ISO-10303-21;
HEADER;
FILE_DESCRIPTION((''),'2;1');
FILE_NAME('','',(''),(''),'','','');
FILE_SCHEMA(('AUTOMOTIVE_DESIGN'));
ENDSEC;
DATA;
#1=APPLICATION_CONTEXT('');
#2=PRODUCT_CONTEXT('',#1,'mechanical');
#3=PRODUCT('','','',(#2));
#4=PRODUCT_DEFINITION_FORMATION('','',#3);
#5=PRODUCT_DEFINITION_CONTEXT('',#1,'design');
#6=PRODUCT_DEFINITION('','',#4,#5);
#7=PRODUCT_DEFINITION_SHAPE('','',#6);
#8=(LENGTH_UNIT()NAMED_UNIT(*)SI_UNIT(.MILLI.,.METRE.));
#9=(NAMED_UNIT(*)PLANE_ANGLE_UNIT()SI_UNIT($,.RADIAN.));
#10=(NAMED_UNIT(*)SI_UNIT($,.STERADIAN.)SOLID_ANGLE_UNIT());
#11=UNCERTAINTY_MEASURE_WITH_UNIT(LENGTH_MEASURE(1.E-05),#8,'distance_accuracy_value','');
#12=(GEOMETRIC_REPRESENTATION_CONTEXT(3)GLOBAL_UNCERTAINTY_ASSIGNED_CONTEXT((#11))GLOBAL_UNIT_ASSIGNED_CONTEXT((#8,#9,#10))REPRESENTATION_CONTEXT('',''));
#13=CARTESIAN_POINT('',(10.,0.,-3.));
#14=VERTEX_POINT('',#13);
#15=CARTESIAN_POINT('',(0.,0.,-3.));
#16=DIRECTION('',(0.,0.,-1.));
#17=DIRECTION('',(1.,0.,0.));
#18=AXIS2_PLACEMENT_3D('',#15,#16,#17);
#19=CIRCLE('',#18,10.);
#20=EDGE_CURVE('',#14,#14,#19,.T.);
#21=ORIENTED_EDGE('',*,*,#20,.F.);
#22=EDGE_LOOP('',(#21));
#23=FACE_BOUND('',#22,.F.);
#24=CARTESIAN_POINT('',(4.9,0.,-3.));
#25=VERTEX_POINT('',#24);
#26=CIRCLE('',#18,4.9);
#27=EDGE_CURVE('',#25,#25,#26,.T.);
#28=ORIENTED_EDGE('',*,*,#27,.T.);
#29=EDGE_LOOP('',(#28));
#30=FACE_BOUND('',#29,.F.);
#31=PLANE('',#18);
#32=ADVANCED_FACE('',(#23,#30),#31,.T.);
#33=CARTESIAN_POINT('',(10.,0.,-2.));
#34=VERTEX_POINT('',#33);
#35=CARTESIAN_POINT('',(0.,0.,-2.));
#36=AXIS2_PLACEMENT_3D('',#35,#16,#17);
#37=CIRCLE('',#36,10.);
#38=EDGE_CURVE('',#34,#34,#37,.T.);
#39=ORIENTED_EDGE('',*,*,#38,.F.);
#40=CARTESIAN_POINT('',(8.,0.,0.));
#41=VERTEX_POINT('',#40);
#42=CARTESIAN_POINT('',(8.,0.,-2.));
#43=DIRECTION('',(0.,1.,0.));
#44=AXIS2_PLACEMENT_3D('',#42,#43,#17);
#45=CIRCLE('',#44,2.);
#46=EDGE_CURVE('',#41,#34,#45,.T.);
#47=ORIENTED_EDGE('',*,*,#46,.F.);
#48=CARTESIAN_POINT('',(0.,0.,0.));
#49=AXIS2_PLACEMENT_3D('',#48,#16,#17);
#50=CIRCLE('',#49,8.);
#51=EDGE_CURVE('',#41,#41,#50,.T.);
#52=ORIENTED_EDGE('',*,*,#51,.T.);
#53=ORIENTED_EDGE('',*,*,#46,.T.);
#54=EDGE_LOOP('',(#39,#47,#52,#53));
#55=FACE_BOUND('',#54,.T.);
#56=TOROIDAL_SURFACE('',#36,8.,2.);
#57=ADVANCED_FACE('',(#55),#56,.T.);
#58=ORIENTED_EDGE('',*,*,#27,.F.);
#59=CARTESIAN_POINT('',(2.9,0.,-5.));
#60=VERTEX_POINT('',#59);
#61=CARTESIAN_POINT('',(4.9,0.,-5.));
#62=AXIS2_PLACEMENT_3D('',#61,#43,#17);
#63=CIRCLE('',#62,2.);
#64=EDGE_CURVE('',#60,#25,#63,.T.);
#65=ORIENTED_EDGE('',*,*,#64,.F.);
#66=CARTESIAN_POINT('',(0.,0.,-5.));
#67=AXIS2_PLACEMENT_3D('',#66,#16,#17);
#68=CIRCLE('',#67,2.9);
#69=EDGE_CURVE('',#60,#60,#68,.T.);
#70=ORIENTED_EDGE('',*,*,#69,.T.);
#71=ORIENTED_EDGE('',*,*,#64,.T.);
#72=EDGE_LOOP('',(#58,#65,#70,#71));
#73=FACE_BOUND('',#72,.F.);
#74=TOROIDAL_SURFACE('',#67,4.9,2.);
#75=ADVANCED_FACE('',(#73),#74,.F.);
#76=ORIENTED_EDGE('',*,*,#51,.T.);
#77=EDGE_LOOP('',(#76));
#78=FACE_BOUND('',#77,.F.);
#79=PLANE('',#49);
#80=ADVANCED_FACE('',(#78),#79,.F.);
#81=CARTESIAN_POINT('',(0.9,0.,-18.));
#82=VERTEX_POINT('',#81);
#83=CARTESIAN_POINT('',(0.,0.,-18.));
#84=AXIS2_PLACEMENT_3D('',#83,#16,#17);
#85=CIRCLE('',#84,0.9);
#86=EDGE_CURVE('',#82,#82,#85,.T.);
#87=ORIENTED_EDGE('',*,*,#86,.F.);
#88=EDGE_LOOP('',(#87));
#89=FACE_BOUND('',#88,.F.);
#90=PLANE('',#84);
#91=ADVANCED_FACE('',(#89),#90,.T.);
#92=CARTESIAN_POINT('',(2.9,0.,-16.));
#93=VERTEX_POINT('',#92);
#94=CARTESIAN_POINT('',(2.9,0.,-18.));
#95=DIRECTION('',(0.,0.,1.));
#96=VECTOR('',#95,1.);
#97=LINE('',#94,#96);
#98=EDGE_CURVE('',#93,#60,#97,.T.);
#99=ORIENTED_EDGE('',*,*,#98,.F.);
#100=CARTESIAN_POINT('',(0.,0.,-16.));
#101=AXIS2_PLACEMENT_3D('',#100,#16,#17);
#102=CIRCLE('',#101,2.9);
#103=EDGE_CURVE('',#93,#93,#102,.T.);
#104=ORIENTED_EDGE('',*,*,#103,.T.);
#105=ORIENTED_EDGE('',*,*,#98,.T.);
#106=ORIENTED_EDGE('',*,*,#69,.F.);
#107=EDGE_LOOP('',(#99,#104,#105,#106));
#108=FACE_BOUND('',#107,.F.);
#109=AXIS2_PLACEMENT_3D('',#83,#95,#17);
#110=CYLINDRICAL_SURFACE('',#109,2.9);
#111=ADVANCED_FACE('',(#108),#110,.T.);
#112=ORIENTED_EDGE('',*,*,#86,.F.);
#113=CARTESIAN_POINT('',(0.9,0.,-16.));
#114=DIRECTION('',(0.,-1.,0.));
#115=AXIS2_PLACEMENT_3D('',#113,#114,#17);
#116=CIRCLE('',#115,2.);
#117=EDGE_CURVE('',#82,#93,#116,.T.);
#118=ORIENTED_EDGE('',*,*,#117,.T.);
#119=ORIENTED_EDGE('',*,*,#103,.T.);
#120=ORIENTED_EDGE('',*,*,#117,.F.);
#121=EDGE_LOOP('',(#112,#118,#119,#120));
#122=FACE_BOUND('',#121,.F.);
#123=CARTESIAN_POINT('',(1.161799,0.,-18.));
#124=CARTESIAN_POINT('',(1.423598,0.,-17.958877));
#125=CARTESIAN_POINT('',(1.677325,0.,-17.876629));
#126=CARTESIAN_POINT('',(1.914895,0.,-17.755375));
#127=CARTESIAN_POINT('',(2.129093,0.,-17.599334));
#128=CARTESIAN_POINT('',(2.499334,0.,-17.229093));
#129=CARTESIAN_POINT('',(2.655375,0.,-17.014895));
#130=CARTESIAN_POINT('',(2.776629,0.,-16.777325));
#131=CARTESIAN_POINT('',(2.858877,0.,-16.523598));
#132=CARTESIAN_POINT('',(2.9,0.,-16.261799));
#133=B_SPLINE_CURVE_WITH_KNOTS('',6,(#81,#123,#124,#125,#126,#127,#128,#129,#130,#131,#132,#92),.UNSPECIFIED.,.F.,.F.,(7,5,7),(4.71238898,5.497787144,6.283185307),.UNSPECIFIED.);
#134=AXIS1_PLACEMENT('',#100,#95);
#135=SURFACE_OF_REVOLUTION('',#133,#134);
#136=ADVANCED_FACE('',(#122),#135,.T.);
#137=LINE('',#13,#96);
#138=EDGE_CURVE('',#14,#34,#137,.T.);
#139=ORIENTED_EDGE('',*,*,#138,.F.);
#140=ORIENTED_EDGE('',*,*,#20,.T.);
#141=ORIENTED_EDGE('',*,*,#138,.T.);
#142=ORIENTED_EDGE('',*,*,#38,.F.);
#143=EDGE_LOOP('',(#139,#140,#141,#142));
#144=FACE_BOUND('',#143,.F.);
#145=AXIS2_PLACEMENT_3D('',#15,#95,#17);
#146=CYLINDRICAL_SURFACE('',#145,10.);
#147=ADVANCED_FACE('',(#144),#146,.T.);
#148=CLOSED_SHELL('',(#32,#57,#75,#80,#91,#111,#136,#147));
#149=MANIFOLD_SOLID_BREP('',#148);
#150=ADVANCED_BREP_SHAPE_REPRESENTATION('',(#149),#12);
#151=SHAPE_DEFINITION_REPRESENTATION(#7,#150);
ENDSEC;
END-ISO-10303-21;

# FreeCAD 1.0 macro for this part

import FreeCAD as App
import Part
import Sketcher


def edges_at(feature, points):
    """Names of the edges that pass closest to the given points."""
    edges = feature.Shape.Edges
    near = lambda p: min(range(len(edges)), key=lambda i: edges[i].distToShape(Part.Vertex(*p))[0])
    return sorted({f"Edge{near(p) + 1}" for p in points})


def add_polygon(sketch, points):
    """Adds a closed chain of lines whose ends are joined by coincident constraints."""
    first, n = sketch.GeometryCount, len(points)
    for a, b in zip(points, points[1:] + points[:1]):
        sketch.addGeometry(Part.LineSegment(App.Vector(*a, 0), App.Vector(*b, 0)), False)
    for i in range(n):
        sketch.addConstraint(Sketcher.Constraint("Coincident", first + i, 2, first + (i + 1) % n, 1))

doc = App.newDocument("Part")
body = doc.addObject("PartDesign::Body", "Body")

# Sketch on XZ plane
sketch1 = doc.addObject("Sketcher::SketchObject", "Sketch")
body.addObject(sketch1)
sketch1.AttachmentSupport = (doc.XZ_Plane, [""])
sketch1.MapMode = "FlatFace"
add_polygon(sketch1, [(10, 0), (0, 0), (0, -18), (2.9, -18), (2.9, -3), (10, -3)])  # lines 0-5
sketch1.addConstraint(Sketcher.Constraint("Horizontal", 0))
sketch1.addConstraint(Sketcher.Constraint("Vertical", 1))
sketch1.addConstraint(Sketcher.Constraint("Horizontal", 2))
sketch1.addConstraint(Sketcher.Constraint("Vertical", 3))
sketch1.addConstraint(Sketcher.Constraint("Horizontal", 4))
sketch1.addConstraint(Sketcher.Constraint("Vertical", 5))
sketch1.addConstraint(Sketcher.Constraint("Coincident", 0, 2, -1, 1))
sketch1.addConstraint(Sketcher.Constraint("DistanceX", 0, 2, 0, 1, 10.0))
sketch1.addConstraint(Sketcher.Constraint("DistanceY", 1, 2, 1, 1, 18.0))
sketch1.addConstraint(Sketcher.Constraint("DistanceY", 3, 1, 3, 2, 15.0))
sketch1.addConstraint(Sketcher.Constraint("DistanceX", 2, 1, 2, 2, 2.9))
revolution = doc.addObject("PartDesign::Revolution", "Revolution")
body.addObject(revolution)
revolution.Profile = sketch1
revolution.ReferenceAxis = (sketch1, ["V_Axis"])
revolution.Angle = 360
doc.recompute()

fillet = doc.addObject("PartDesign::Fillet", "Fillet")
body.addObject(fillet)
fillet.Base = (revolution, edges_at(revolution, [
    (-2.9, 0, -18),
    (-10, 0, 0),
    (-2.9, 0, -3),
    (2.9, 0, -10.5),
]))
fillet.Radius = 2

doc.recompute()
